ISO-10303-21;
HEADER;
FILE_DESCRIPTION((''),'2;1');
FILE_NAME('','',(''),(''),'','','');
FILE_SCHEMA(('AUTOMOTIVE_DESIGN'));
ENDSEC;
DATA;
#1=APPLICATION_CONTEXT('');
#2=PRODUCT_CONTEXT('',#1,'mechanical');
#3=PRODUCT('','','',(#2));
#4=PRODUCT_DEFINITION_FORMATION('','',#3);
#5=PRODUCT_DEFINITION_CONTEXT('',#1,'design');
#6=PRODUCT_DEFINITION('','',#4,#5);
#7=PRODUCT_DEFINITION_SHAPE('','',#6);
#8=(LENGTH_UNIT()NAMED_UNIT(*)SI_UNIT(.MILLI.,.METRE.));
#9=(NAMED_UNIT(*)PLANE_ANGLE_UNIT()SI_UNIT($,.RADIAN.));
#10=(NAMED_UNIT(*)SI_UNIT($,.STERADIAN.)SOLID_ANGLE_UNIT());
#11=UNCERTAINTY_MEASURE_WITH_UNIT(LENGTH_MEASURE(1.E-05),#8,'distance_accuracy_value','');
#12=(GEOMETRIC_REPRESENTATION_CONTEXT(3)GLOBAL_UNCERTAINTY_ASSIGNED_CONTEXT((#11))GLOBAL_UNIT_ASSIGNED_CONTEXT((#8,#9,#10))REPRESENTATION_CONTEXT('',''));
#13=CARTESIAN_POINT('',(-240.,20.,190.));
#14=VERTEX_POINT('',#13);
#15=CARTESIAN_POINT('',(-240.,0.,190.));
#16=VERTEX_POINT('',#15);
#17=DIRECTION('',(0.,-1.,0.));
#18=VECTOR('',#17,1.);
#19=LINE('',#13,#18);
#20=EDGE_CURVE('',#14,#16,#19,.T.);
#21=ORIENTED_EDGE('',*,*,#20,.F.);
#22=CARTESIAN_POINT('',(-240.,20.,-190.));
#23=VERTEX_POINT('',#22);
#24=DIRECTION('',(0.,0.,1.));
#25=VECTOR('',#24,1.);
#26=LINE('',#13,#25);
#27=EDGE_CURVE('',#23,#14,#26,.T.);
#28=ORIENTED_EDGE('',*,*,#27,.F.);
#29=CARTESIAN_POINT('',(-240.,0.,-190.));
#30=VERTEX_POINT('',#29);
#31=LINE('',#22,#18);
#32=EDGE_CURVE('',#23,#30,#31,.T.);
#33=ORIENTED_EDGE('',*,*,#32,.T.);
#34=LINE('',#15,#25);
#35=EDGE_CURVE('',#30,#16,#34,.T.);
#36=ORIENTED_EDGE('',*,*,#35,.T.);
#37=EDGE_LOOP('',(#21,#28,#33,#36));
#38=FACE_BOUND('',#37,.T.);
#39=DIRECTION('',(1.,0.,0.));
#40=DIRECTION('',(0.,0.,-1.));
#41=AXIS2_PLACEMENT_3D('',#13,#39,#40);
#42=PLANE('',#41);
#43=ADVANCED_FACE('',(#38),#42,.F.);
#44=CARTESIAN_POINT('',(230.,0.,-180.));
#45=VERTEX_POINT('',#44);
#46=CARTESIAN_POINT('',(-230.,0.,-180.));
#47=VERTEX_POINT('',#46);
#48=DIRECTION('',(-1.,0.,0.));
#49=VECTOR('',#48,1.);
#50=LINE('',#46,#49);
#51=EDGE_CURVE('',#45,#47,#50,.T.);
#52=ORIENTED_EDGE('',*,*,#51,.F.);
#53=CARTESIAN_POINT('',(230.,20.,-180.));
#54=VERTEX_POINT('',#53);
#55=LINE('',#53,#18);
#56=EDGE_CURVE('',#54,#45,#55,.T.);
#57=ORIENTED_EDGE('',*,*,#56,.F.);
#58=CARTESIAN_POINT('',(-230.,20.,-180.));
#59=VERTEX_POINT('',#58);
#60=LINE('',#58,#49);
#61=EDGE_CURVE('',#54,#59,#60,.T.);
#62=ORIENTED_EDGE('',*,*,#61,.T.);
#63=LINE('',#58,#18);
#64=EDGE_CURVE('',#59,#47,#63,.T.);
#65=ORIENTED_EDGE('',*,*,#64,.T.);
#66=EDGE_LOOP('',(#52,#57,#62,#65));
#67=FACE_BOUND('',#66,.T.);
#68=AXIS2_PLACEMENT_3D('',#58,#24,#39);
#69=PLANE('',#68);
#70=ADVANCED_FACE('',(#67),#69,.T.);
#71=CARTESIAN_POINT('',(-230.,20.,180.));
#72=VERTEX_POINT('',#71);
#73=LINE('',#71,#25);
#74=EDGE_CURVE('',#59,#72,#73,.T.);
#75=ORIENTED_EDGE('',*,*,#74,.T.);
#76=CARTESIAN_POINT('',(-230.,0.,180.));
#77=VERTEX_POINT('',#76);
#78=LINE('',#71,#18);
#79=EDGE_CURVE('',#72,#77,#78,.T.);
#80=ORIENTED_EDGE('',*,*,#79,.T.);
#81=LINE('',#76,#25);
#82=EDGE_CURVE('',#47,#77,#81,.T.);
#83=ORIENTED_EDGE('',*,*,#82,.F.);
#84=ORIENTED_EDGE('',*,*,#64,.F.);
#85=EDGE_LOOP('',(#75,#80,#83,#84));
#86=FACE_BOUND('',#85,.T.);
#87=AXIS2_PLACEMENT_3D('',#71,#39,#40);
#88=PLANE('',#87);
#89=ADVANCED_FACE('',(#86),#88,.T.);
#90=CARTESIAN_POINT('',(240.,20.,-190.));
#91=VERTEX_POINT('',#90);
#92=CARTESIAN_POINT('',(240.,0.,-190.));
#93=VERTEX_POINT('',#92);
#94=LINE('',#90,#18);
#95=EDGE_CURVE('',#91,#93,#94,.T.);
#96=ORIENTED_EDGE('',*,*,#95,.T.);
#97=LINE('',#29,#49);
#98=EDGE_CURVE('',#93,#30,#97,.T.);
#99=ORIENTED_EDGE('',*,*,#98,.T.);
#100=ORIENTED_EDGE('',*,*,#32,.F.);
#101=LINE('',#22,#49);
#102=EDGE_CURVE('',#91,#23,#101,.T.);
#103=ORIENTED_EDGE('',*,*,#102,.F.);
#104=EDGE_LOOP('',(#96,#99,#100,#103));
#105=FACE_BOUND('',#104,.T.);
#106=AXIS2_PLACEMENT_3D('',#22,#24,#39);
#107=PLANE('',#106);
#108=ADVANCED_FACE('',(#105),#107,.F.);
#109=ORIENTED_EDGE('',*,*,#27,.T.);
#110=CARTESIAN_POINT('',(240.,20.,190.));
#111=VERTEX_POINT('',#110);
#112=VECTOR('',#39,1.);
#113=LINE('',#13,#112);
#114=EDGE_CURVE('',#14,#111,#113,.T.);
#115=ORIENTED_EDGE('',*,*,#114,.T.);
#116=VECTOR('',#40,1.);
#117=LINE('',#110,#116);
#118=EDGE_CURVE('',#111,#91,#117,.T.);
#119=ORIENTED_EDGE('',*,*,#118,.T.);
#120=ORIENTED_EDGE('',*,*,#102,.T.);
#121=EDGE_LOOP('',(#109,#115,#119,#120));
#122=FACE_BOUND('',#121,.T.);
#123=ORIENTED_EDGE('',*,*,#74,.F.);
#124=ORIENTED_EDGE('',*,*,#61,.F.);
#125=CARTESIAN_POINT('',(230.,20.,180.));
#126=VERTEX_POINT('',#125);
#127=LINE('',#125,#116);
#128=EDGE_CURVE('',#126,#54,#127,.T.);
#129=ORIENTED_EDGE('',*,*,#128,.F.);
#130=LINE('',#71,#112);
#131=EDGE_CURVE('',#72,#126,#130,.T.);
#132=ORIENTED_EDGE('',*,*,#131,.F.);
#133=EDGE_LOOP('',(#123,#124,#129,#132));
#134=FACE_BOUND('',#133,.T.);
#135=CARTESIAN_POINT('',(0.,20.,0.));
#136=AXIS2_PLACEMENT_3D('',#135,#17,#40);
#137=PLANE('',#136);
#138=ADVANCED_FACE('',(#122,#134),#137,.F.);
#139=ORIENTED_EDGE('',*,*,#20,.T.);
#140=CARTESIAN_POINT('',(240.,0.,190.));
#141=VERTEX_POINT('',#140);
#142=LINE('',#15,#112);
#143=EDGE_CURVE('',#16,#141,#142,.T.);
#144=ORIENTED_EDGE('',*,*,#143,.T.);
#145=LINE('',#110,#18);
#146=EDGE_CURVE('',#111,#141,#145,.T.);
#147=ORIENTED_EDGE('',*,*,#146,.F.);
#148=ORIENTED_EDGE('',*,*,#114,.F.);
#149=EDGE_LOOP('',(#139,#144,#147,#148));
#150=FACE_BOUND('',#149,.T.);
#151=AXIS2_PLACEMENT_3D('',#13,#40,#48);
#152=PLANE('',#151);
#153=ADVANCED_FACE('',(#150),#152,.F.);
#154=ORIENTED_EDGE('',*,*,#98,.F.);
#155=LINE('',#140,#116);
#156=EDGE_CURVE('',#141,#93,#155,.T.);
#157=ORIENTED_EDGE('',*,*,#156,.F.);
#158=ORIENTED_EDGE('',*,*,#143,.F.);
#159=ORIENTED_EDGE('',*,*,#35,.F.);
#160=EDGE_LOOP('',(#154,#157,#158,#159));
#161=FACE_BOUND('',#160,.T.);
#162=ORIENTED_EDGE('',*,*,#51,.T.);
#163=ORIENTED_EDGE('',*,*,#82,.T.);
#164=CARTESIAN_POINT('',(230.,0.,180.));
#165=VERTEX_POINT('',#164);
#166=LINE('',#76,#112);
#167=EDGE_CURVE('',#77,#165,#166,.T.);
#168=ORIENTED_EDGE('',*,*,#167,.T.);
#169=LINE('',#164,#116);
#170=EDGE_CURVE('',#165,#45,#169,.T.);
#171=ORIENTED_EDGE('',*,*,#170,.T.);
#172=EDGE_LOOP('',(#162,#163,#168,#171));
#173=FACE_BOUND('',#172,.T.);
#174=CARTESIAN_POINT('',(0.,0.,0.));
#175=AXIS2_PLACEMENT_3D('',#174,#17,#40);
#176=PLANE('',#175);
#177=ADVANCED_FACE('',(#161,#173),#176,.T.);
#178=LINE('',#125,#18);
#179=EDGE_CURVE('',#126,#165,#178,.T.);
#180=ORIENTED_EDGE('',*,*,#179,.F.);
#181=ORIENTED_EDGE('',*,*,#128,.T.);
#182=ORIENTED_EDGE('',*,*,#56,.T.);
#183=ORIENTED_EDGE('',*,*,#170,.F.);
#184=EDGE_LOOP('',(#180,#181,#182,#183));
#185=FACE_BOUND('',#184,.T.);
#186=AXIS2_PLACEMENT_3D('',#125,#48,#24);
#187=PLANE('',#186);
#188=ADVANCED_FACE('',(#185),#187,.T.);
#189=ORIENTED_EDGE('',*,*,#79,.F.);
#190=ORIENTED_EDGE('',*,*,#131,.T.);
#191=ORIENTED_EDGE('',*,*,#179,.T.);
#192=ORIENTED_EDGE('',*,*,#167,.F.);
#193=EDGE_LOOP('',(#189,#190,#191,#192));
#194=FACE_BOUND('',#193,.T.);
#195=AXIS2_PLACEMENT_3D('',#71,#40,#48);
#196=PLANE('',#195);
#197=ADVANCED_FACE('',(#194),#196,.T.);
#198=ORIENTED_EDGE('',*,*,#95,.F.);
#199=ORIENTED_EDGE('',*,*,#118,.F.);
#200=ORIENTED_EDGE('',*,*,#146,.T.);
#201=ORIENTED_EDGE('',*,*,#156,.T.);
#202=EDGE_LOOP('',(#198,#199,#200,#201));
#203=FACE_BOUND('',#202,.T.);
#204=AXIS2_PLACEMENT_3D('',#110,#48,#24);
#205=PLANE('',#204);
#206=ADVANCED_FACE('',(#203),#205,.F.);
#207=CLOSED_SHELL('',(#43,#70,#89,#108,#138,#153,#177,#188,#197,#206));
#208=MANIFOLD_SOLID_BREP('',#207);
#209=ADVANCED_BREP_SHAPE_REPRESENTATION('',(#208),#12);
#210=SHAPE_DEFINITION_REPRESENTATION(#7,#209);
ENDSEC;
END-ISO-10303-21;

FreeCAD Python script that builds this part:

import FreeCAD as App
import Part
import Sketcher

V = App.Vector

doc = App.newDocument("Part")
body = doc.addObject("PartDesign::Body", "Body")

sketch1 = body.newObject("Sketcher::SketchObject", "Sketch")
sketch1.AttachmentSupport = (doc.getObject("XZ_Plane"), [""])
sketch1.MapMode = "FlatFace"
sketch1.addGeometry([
    Part.LineSegment(V(-240, -190, 0), V(-240, 190, 0)),
    Part.LineSegment(V(-240, 190, 0), V(240, 190, 0)),
    Part.LineSegment(V(240, 190, 0), V(240, -190, 0)),
    Part.LineSegment(V(240, -190, 0), V(-240, -190, 0)),
    Part.LineSegment(V(230, 180, 0), V(-230, 180, 0)),
    Part.LineSegment(V(-230, 180, 0), V(-230, -180, 0)),
    Part.LineSegment(V(-230, -180, 0), V(230, -180, 0)),
    Part.LineSegment(V(230, -180, 0), V(230, 180, 0)),
], False)
sketch1.addConstraint([
    Sketcher.Constraint("Coincident", 0, 2, 1, 1),
    Sketcher.Constraint("Coincident", 1, 2, 2, 1),
    Sketcher.Constraint("Coincident", 2, 2, 3, 1),
    Sketcher.Constraint("Coincident", 3, 2, 0, 1),
    Sketcher.Constraint("Coincident", 4, 2, 5, 1),
    Sketcher.Constraint("Coincident", 5, 2, 6, 1),
    Sketcher.Constraint("Coincident", 6, 2, 7, 1),
    Sketcher.Constraint("Coincident", 7, 2, 4, 1),
    Sketcher.Constraint("Vertical", 0),
    Sketcher.Constraint("Horizontal", 1),
    Sketcher.Constraint("Vertical", 2),
    Sketcher.Constraint("Horizontal", 3),
    Sketcher.Constraint("Horizontal", 4),
    Sketcher.Constraint("Vertical", 5),
    Sketcher.Constraint("Horizontal", 6),
    Sketcher.Constraint("Vertical", 7),
    Sketcher.Constraint("Symmetric", 0, 2, 2, 2, -1, 1),
    Sketcher.Constraint("Symmetric", 4, 2, 6, 2, -1, 1),
    Sketcher.Constraint("DistanceX", 1, 1, 1, 2, 480.0),
    Sketcher.Constraint("DistanceX", 4, 2, 4, 1, 460.0),
    Sketcher.Constraint("DistanceY", 0, 1, 0, 2, 380.0),
    Sketcher.Constraint("DistanceY", 5, 2, 5, 1, 360.0),
])
pad1 = body.newObject("PartDesign::Pad", "Pad")
pad1.Profile = sketch1
pad1.Length = 20
pad1.Reversed = True

doc.recompute()
